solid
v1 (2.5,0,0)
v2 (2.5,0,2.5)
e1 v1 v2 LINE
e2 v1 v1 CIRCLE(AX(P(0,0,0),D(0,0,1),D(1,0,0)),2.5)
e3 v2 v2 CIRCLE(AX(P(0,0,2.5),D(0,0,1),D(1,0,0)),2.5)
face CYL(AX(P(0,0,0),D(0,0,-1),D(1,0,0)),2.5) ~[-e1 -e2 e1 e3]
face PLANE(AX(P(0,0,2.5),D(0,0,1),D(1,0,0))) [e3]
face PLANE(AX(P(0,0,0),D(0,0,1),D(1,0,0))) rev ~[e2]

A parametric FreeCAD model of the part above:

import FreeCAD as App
import Part
import Sketcher
Q = App.Units.Quantity

doc = App.newDocument("Part")
params = doc.addObject("Spreadsheet::Sheet", "Params")
for row, (alias, value) in enumerate([
    ("sketch1_diameter", "5 mm"),
    ("pad1_length", "2.5 mm"),
], start=1):
    params.set(f"A{row}", alias)
    params.set(f"B{row}", "=" + value)
    params.setAlias(f"B{row}", alias)

body = doc.addObject("PartDesign::Body", "Body")

# Sketch on XY plane
sketch1 = doc.addObject("Sketcher::SketchObject", "Sketch")
body.addObject(sketch1)
sketch1.AttachmentSupport = (doc.XY_Plane, [""])
sketch1.MapMode = "FlatFace"
sketch1.addGeometry(Part.Circle(App.Vector(0, 0, 0), App.Vector(0, 0, 1), 2.5), False)
sketch1.addConstraint(Sketcher.Constraint("Coincident", 0, 3, -1, 1))
sketch1.addConstraint(Sketcher.Constraint("Diameter", 0, Q("5 mm")))
sketch1.setExpression("Constraints[1]", "Params.sketch1_diameter")
pad1 = doc.addObject("PartDesign::Pad", "Pad")
body.addObject(pad1)
pad1.Profile = sketch1
pad1.setExpression("Length", "Params.pad1_length")

doc.recompute()
